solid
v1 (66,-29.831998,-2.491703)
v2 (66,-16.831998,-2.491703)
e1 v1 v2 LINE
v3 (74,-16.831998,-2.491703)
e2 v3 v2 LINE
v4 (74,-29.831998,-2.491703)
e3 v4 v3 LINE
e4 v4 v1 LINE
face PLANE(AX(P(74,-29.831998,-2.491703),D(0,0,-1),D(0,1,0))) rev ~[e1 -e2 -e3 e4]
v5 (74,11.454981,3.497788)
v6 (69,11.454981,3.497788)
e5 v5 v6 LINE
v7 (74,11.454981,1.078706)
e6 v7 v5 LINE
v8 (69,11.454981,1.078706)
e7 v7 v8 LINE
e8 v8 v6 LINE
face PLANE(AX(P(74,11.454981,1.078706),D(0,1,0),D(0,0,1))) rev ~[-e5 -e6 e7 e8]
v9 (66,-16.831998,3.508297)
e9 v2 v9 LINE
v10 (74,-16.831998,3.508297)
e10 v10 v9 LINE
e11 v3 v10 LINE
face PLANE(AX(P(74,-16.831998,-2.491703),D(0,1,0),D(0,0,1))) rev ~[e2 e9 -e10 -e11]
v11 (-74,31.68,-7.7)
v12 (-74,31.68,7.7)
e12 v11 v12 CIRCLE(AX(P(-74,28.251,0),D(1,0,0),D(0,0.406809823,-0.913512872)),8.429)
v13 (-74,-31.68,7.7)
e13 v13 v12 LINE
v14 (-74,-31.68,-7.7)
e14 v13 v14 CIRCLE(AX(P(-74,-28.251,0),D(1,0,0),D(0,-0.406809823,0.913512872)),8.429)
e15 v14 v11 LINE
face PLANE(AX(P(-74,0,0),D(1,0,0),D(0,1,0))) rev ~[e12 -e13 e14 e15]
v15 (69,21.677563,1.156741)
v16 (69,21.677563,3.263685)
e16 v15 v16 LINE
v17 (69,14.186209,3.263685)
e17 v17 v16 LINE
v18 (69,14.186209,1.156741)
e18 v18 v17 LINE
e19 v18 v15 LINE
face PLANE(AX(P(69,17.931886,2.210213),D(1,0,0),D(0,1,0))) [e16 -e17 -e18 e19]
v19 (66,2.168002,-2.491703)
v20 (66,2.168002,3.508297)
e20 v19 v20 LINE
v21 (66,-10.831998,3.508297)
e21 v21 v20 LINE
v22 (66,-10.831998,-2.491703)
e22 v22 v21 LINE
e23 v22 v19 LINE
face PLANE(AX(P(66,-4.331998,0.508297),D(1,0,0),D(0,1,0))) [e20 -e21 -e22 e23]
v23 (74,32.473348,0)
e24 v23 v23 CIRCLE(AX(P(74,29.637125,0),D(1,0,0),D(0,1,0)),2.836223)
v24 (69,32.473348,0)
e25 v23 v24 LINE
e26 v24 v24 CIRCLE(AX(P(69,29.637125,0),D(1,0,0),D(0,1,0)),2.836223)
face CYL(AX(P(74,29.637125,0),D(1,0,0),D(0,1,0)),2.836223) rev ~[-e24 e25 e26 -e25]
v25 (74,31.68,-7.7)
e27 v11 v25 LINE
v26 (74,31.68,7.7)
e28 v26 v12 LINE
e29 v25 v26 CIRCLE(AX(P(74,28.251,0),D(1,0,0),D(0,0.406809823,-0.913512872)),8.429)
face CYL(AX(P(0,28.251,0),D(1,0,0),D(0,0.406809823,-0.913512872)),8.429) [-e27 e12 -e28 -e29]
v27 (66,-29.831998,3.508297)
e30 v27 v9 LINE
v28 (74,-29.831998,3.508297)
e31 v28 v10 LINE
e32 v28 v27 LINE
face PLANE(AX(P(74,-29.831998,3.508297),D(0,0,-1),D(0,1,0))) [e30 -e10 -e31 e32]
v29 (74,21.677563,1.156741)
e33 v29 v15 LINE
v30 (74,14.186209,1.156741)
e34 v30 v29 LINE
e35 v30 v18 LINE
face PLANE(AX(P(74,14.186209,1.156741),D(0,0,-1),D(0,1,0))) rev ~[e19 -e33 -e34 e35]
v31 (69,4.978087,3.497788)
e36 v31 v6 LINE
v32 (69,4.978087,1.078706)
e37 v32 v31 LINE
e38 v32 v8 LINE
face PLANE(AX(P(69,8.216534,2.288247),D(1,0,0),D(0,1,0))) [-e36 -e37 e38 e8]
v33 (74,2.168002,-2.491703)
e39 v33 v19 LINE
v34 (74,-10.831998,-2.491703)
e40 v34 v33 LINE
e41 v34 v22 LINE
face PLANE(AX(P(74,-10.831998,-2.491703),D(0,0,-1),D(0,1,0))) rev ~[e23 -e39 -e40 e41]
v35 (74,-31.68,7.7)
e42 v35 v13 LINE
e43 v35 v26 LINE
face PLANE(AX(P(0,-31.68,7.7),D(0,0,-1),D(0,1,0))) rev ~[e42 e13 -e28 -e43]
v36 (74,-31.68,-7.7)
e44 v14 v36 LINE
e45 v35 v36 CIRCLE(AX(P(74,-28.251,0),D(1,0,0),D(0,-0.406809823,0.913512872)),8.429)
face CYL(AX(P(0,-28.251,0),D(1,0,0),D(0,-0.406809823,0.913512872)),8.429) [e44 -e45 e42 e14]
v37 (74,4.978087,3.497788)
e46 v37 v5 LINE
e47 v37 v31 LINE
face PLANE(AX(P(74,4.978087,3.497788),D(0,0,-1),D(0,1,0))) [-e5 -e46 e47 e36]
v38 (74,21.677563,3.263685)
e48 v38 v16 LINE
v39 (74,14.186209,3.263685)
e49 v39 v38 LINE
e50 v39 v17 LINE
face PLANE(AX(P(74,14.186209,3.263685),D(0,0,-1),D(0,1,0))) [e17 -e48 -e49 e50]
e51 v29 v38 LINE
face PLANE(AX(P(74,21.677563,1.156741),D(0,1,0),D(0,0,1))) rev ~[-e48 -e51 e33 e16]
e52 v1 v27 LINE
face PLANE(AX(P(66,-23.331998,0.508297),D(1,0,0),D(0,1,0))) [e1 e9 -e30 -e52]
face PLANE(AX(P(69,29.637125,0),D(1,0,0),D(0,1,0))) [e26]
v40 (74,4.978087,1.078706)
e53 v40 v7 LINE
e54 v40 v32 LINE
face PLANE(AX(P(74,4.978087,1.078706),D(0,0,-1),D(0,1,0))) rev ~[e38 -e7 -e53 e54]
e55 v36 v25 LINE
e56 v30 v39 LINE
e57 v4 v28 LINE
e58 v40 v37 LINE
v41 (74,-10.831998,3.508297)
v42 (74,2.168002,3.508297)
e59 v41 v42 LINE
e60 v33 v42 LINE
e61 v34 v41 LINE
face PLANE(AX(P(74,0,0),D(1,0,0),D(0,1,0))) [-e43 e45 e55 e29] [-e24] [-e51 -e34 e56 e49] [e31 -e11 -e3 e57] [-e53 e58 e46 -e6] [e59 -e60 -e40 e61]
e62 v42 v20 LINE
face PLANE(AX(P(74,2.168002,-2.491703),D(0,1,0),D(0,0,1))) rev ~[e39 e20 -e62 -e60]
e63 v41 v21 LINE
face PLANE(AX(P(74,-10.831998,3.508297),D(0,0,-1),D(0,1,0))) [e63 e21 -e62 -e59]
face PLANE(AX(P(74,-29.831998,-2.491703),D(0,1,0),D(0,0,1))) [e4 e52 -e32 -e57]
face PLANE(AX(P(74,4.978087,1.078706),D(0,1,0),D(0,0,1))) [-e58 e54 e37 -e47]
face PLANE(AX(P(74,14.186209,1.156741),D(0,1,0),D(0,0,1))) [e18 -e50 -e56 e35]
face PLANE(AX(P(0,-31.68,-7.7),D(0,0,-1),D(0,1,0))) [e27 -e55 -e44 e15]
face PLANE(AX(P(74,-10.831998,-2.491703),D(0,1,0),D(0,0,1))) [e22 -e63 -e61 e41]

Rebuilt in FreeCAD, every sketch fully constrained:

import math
import FreeCAD as App
import Part
import Sketcher

V = App.Vector
Q = App.Units.Quantity

doc = App.newDocument("Part")
params = doc.addObject("Spreadsheet::Sheet", "Params")
for row, (alias, value) in enumerate([
    ("sketch1_width", "63.36 mm"),
    ("pad1_length", "148 mm"),
    ("sketch2_width", "13 mm"),
    ("sketch2_height", "6 mm"),
    ("pocket1_length", "8 mm"),
    ("linearpattern_pitch", "19 mm"),
    ("pocket2_length", "5 mm"),
], start=1):
    params.set(f"A{row}", alias)
    params.set(f"B{row}", "=" + value)
    params.setAlias(f"B{row}", alias)

body = doc.addObject("PartDesign::Body", "Body")

# Sketch on YZ plane
sketch1 = doc.addObject("Sketcher::SketchObject", "Sketch")
body.addObject(sketch1)
sketch1.AttachmentSupport = (doc.YZ_Plane, [""])
sketch1.MapMode = "FlatFace"
sketch1.addGeometry([
    Part.ArcOfCircle(Part.Circle(V(-28, 0, 0), V(0, 0, 1), 8), math.radians(114), math.radians(246)),
    Part.LineSegment(V(-32, -8, 0), V(32, -8, 0)),
    Part.ArcOfCircle(Part.Circle(V(28, 0, 0), V(0, 0, 1), 8), math.radians(-66), math.radians(66)),
    Part.LineSegment(V(32, 8, 0), V(-32, 8, 0)),
], False)
sketch1.addConstraint([
    Sketcher.Constraint("Coincident", 0, 2, 1, 1),
    Sketcher.Constraint("Coincident", 1, 2, 2, 1),
    Sketcher.Constraint("Coincident", 2, 2, 3, 1),
    Sketcher.Constraint("Coincident", 3, 2, 0, 1),
    Sketcher.Constraint("Horizontal", 1),
    Sketcher.Constraint("Horizontal", 3),
    Sketcher.Constraint("Equal", 0, 2),
    Sketcher.Constraint("Symmetric", 0, 3, 2, 3, -1, 1),
    Sketcher.Constraint("Symmetric", 1, 2, 2, 2, -1),
    Sketcher.Constraint("Radius", 0, Q("8.429 mm")),
    Sketcher.Constraint("DistanceX", 1, 1, 1, 2, Q("63.36 mm")),
    Sketcher.Constraint("DistanceY", 0, 2, -1, 1, Q("7.7 mm")),
])
sketch1.setExpression("Constraints[10]", "Params.sketch1_width")
pad1 = doc.addObject("PartDesign::Pad", "Pad")
body.addObject(pad1)
pad1.Profile = sketch1
pad1.setExpression("Length", "Params.pad1_length")
pad1.Midplane = True

# Sketch on YZ plane
sketch2 = doc.addObject("Sketcher::SketchObject", "Sketch001")
body.addObject(sketch2)
sketch2.AttachmentSupport = (doc.YZ_Plane, [""])
sketch2.MapMode = "FlatFace"
sketch2.AttachmentOffset = App.Placement(V(0, 0, 74), App.Rotation())
sketch2.addGeometry([
    Part.LineSegment(V(-30, 4, 0), V(-30, -2, 0)),
    Part.LineSegment(V(-30, -2, 0), V(-17, -2, 0)),
    Part.LineSegment(V(-17, -2, 0), V(-17, 4, 0)),
    Part.LineSegment(V(-17, 4, 0), V(-30, 4, 0)),
], False)
sketch2.addConstraint([
    Sketcher.Constraint("Coincident", 0, 2, 1, 1),
    Sketcher.Constraint("Coincident", 1, 2, 2, 1),
    Sketcher.Constraint("Coincident", 2, 2, 3, 1),
    Sketcher.Constraint("Coincident", 3, 2, 0, 1),
    Sketcher.Constraint("Vertical", 0),
    Sketcher.Constraint("Horizontal", 1),
    Sketcher.Constraint("Vertical", 2),
    Sketcher.Constraint("Horizontal", 3),
    Sketcher.Constraint("DistanceX", 1, 1, 1, 2, Q("13 mm")),
    Sketcher.Constraint("DistanceY", 0, 2, 0, 1, Q("6 mm")),
    Sketcher.Constraint("DistanceX", 0, 2, -1, 1, Q("29.831998 mm")),
    Sketcher.Constraint("DistanceY", 0, 2, -1, 1, Q("2.491703 mm")),
])
sketch2.setExpression("Constraints[8]", "Params.sketch2_width")
sketch2.setExpression("Constraints[9]", "Params.sketch2_height")
pocket1 = doc.addObject("PartDesign::Pocket", "Pocket")
body.addObject(pocket1)
pocket1.Profile = sketch2
pocket1.setExpression("Length", "Params.pocket1_length")
doc.recompute()

linearpattern = doc.addObject("PartDesign::LinearPattern", "LinearPattern")
body.addObject(linearpattern)
linearpattern.Originals = [pocket1]
linearpattern.Direction = (doc.Y_Axis, [""])
linearpattern.Mode = "offset"
linearpattern.setExpression("Offset", "Params.linearpattern_pitch")
linearpattern.Occurrences = 2
body.Tip = linearpattern

# Sketch on YZ plane
sketch3 = doc.addObject("Sketcher::SketchObject", "Sketch002")
body.addObject(sketch3)
sketch3.AttachmentSupport = (doc.YZ_Plane, [""])
sketch3.MapMode = "FlatFace"
sketch3.AttachmentOffset = App.Placement(V(0, 0, 74), App.Rotation())
sketch3.addGeometry([
    Part.Circle(V(29.6, 0, 0), V(0, 0, 1), 2.8),  # 0
    Part.LineSegment(V(5, 3.5, 0), V(5, 1.1, 0)),  # 1
    Part.LineSegment(V(5, 1.1, 0), V(11.5, 1.1, 0)),  # 2
    Part.LineSegment(V(11.5, 1.1, 0), V(11.5, 3.5, 0)),  # 3
    Part.LineSegment(V(11.5, 3.5, 0), V(5, 3.5, 0)),  # 4
    Part.LineSegment(V(14.2, 3.3, 0), V(14.2, 1.2, 0)),  # 5
    Part.LineSegment(V(14.2, 1.2, 0), V(21.7, 1.2, 0)),  # 6
    Part.LineSegment(V(21.7, 1.2, 0), V(21.7, 3.3, 0)),  # 7
    Part.LineSegment(V(21.7, 3.3, 0), V(14.2, 3.3, 0)),  # 8
], False)
sketch3.addConstraint([
    Sketcher.Constraint("Coincident", 1, 2, 2, 1),
    Sketcher.Constraint("Coincident", 2, 2, 3, 1),
    Sketcher.Constraint("Coincident", 3, 2, 4, 1),
    Sketcher.Constraint("Coincident", 4, 2, 1, 1),
    Sketcher.Constraint("Coincident", 5, 2, 6, 1),
    Sketcher.Constraint("Coincident", 6, 2, 7, 1),
    Sketcher.Constraint("Coincident", 7, 2, 8, 1),
    Sketcher.Constraint("Coincident", 8, 2, 5, 1),
    Sketcher.Constraint("Vertical", 1),
    Sketcher.Constraint("Horizontal", 2),
    Sketcher.Constraint("Vertical", 3),
    Sketcher.Constraint("Horizontal", 4),
    Sketcher.Constraint("Vertical", 5),
    Sketcher.Constraint("Horizontal", 6),
    Sketcher.Constraint("Vertical", 7),
    Sketcher.Constraint("Horizontal", 8),
    Sketcher.Constraint("PointOnObject", 0, 3, -1),
    Sketcher.Constraint("Diameter", 0, Q("5.672446 mm")),
    Sketcher.Constraint("DistanceX", 2, 1, 2, 2, Q("6.476894 mm")),
    Sketcher.Constraint("DistanceX", 6, 1, 6, 2, Q("7.491354 mm")),
    Sketcher.Constraint("DistanceY", 1, 2, 1, 1, Q("2.419083 mm")),
    Sketcher.Constraint("DistanceY", 5, 2, 5, 1, Q("2.106944 mm")),
    Sketcher.Constraint("DistanceX", -1, 1, 2, 2, Q("11.454981 mm")),
    Sketcher.Constraint("DistanceY", -1, 1, 3, 2, Q("3.497788 mm")),
    Sketcher.Constraint("DistanceX", -1, 1, 5, 2, Q("14.186209 mm")),
    Sketcher.Constraint("DistanceY", -1, 1, 5, 2, Q("1.156741 mm")),
    Sketcher.Constraint("DistanceX", 1, 2, 0, 3, Q("24.659038 mm")),
])
pocket2 = doc.addObject("PartDesign::Pocket", "Pocket001")
body.addObject(pocket2)
pocket2.Profile = sketch3
pocket2.setExpression("Length", "Params.pocket2_length")

doc.recompute()
